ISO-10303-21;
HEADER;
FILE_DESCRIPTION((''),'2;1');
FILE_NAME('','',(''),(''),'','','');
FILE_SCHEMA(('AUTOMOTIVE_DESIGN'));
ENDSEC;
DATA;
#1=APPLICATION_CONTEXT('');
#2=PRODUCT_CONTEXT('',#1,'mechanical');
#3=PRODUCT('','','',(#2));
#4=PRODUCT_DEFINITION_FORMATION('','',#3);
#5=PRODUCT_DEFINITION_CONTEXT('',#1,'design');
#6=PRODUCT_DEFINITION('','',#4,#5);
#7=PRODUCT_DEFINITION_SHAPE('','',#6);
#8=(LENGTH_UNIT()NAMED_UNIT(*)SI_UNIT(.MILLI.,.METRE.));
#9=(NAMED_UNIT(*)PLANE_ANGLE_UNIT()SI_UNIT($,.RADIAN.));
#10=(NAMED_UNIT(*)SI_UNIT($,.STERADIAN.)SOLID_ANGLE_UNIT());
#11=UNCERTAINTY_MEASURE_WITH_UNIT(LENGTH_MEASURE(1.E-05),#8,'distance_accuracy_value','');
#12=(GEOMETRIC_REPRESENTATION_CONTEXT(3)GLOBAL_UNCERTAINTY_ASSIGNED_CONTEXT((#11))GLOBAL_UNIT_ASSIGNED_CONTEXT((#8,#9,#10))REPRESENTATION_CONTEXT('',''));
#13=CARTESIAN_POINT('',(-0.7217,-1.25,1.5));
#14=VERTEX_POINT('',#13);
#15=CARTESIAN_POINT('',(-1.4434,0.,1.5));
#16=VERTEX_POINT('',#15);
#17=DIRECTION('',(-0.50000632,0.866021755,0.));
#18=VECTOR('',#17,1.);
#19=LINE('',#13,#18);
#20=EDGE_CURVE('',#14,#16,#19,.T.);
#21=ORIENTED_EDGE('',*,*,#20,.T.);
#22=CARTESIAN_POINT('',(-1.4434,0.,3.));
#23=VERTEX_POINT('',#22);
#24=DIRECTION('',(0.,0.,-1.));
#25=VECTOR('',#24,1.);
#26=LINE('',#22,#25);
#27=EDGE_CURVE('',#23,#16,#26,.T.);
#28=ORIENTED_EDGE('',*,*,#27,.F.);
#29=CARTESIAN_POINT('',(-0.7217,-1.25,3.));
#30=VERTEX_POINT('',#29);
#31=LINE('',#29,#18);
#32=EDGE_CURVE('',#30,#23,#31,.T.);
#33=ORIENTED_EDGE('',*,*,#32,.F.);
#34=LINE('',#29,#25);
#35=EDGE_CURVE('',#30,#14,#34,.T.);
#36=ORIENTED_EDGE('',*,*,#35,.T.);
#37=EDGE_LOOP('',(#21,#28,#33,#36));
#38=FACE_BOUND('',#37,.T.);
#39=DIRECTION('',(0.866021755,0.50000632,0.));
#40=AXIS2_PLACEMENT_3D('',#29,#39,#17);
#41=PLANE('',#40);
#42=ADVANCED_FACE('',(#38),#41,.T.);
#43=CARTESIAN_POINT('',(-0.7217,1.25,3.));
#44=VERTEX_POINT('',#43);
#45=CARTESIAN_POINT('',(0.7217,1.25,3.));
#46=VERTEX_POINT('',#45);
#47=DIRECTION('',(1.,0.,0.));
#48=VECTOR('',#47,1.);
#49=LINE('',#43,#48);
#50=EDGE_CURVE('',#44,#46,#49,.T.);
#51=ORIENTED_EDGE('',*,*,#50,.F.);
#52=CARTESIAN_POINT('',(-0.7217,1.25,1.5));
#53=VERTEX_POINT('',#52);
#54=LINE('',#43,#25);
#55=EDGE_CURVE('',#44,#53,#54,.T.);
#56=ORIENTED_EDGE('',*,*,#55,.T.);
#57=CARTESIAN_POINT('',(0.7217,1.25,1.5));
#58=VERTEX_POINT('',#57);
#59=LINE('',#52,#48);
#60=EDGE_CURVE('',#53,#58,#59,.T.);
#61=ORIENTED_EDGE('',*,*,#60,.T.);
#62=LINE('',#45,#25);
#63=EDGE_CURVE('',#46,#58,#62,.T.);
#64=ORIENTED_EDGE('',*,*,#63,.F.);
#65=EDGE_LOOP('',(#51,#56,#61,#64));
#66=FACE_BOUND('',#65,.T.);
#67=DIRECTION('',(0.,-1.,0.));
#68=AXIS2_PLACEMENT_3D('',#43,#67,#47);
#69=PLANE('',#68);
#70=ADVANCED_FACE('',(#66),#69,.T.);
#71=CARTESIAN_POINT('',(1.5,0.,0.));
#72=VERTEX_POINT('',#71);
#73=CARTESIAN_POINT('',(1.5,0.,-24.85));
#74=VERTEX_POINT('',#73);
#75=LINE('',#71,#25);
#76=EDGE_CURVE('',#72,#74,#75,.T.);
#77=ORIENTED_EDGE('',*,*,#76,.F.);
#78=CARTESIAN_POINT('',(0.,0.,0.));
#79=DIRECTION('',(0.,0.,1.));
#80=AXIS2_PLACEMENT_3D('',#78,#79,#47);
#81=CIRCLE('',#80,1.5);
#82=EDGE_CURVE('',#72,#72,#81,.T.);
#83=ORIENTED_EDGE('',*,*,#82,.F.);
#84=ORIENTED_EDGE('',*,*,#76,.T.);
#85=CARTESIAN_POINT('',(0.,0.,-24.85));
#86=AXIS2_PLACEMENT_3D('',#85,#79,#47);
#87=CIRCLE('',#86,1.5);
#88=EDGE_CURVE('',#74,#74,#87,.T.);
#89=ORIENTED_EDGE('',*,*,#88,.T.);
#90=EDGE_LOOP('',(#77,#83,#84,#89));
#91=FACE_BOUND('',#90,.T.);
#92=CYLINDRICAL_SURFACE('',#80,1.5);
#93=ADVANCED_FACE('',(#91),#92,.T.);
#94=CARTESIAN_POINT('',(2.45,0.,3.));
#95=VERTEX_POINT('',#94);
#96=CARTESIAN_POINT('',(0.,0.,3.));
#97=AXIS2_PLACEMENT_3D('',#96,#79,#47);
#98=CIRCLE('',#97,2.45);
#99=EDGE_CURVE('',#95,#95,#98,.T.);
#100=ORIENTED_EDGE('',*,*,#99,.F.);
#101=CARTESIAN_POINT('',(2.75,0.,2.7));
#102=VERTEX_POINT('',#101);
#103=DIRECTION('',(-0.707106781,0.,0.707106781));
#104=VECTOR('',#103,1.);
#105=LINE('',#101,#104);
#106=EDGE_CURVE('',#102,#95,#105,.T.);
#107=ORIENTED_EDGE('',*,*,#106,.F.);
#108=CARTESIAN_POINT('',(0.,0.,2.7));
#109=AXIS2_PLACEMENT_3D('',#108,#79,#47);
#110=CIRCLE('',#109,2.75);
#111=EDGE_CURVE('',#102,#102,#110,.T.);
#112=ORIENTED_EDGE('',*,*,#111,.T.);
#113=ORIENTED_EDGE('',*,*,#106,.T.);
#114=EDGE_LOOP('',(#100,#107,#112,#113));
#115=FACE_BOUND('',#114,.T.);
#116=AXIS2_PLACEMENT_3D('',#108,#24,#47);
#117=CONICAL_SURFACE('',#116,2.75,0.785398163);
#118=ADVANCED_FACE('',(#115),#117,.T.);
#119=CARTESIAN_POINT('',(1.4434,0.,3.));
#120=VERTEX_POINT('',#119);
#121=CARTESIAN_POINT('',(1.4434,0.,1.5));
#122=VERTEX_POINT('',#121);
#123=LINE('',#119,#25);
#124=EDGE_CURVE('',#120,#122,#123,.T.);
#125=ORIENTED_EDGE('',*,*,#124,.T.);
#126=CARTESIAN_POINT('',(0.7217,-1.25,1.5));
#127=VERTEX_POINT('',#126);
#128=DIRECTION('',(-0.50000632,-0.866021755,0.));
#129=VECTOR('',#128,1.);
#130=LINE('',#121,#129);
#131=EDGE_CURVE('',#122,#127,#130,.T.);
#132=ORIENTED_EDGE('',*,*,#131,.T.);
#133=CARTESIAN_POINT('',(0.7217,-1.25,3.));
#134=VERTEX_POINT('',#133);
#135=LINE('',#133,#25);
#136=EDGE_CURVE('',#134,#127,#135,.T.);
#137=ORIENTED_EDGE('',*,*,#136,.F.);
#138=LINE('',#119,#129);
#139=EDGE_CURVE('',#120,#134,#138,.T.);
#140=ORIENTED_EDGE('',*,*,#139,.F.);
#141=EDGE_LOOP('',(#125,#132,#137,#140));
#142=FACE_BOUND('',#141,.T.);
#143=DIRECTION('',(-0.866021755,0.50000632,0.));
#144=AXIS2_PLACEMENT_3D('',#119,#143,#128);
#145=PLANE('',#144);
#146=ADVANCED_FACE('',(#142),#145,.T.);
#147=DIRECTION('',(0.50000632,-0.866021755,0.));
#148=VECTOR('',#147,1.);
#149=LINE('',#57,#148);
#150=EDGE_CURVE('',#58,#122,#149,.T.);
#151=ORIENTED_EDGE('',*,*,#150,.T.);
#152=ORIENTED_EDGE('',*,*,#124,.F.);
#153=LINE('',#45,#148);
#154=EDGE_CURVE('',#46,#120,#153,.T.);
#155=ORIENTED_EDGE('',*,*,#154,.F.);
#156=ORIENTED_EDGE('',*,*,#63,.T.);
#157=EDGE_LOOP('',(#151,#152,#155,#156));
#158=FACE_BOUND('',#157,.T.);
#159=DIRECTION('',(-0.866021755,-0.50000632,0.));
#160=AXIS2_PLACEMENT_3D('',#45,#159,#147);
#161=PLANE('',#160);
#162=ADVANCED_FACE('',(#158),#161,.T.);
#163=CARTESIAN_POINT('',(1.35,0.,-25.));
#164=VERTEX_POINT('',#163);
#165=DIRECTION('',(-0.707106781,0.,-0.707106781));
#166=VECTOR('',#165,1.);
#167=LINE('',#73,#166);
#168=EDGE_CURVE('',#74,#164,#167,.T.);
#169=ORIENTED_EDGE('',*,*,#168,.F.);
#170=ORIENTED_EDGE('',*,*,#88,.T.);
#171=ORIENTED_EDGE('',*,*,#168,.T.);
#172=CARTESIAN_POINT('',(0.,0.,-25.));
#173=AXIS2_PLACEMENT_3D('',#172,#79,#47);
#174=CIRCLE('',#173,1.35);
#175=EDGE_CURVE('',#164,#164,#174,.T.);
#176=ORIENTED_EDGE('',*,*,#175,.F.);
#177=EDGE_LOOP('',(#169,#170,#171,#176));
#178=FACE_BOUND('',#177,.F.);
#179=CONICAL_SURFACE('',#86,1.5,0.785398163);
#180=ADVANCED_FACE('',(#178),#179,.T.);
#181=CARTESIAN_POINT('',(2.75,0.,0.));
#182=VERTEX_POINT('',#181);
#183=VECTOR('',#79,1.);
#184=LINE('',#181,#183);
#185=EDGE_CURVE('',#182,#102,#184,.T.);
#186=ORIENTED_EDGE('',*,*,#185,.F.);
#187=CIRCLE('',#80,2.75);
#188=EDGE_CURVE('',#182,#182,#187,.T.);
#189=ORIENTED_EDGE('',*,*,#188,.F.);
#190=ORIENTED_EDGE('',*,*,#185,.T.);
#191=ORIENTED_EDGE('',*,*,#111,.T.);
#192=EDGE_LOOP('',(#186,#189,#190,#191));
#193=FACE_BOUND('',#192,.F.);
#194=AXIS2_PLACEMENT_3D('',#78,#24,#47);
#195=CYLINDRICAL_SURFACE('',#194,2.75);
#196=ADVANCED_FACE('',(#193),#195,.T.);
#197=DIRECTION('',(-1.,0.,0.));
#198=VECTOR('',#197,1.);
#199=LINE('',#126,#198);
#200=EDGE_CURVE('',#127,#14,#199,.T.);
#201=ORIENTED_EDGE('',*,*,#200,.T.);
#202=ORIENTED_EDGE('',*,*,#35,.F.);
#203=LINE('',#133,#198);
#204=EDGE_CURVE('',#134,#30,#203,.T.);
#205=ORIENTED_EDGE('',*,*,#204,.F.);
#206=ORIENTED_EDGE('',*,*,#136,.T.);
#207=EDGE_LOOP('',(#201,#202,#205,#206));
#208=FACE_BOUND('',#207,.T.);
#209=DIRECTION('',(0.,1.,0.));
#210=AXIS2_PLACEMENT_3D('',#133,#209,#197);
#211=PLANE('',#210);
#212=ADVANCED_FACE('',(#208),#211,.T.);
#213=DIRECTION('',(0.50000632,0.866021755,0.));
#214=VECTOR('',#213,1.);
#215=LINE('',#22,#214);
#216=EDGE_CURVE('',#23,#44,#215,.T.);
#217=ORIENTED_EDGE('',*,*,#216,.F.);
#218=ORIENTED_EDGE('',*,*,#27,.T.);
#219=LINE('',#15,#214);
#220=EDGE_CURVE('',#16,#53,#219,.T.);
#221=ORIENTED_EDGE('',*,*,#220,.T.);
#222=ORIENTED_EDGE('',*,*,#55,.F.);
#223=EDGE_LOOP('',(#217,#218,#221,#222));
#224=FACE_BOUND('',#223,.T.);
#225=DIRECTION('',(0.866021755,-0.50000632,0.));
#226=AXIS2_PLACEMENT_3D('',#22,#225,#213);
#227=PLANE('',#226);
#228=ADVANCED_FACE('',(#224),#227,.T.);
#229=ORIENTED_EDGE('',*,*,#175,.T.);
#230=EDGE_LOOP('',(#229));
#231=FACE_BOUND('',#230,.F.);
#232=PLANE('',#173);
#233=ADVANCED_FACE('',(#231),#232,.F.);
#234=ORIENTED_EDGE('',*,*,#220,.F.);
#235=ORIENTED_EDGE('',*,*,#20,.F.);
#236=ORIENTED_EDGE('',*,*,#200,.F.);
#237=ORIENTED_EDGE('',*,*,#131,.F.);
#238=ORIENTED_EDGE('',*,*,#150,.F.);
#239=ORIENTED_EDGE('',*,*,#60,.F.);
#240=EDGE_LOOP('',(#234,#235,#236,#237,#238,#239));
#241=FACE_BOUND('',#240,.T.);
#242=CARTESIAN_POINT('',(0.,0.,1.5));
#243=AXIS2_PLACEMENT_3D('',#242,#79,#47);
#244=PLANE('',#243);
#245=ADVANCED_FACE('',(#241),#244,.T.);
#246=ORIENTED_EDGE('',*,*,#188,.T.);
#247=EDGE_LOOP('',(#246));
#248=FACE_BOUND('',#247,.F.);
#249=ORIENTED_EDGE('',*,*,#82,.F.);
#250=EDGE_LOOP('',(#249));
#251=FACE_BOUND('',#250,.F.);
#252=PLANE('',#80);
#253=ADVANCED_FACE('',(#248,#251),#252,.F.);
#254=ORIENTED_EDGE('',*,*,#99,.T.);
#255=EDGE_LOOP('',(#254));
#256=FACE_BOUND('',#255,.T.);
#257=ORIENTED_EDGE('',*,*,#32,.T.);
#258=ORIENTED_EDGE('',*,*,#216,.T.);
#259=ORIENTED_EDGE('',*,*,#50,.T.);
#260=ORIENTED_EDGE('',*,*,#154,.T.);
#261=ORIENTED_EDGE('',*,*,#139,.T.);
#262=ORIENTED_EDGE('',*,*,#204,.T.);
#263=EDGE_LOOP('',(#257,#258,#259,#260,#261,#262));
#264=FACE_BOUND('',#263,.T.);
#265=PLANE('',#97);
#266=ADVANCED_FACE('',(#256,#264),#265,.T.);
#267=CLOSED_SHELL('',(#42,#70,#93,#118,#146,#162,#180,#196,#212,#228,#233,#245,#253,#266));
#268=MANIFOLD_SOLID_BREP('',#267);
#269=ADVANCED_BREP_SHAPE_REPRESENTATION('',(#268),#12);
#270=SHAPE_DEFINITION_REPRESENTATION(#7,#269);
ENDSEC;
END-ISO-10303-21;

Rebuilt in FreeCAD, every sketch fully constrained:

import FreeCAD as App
import Part
import Sketcher
Q = App.Units.Quantity


def edges_at(feature, points):
    """Names of the edges that pass closest to the given points."""
    edges = feature.Shape.Edges
    near = lambda p: min(range(len(edges)), key=lambda i: edges[i].distToShape(Part.Vertex(*p))[0])
    return sorted({f"Edge{near(p) + 1}" for p in points})

doc = App.newDocument("Part")
body = doc.addObject("PartDesign::Body", "Body")

sketch1 = body.newObject("Sketcher::SketchObject", "Sketch")
sketch1.AttachmentSupport = (doc.getObject("XY_Plane"), [""])
sketch1.MapMode = "FlatFace"
sketch1.addGeometry(Part.Circle(App.Vector(0, 0, 0), App.Vector(0, 0, 1), 1.5), False)
sketch1.addConstraint([
    Sketcher.Constraint("Coincident", 0, 3, -1, 1),
    Sketcher.Constraint("Diameter", 0, 3.0),
])
pad1 = body.newObject("PartDesign::Pad", "Pad")
pad1.Profile = sketch1
pad1.Length = 25
pad1.Reversed = True

sketch2 = body.newObject("Sketcher::SketchObject", "Sketch001")
sketch2.AttachmentSupport = (doc.getObject("XY_Plane"), [""])
sketch2.MapMode = "FlatFace"
sketch2.addGeometry(Part.Circle(App.Vector(0, 0, 0), App.Vector(0, 0, 1), 2.8), False)
sketch2.addConstraint([
    Sketcher.Constraint("Coincident", 0, 3, -1, 1),
    Sketcher.Constraint("Diameter", 0, 5.5),
])
pad2 = body.newObject("PartDesign::Pad", "Pad001")
pad2.Profile = sketch2
pad2.Length = 3

sketch3 = body.newObject("Sketcher::SketchObject", "Sketch002")
sketch3.AttachmentSupport = (doc.getObject("XY_Plane"), [""])
sketch3.MapMode = "FlatFace"
sketch3.AttachmentOffset = App.Placement(App.Vector(0, 0, 3), App.Rotation())
sketch3.addGeometry([
    Part.LineSegment(App.Vector(0.7, -1.2, 0), App.Vector(1.4, 0, 0)),
    Part.LineSegment(App.Vector(1.4, 0, 0), App.Vector(0.7, 1.2, 0)),
    Part.LineSegment(App.Vector(0.7, 1.2, 0), App.Vector(-0.7, 1.2, 0)),
    Part.LineSegment(App.Vector(-0.7, 1.2, 0), App.Vector(-1.4, 0, 0)),
    Part.LineSegment(App.Vector(-1.4, 0, 0), App.Vector(-0.7, -1.2, 0)),
    Part.LineSegment(App.Vector(-0.7, -1.2, 0), App.Vector(0.7, -1.2, 0)),
], False)
sketch3.addConstraint([
    Sketcher.Constraint("Coincident", 0, 2, 1, 1),
    Sketcher.Constraint("Coincident", 1, 2, 2, 1),
    Sketcher.Constraint("Coincident", 2, 2, 3, 1),
    Sketcher.Constraint("Coincident", 3, 2, 4, 1),
    Sketcher.Constraint("Coincident", 4, 2, 5, 1),
    Sketcher.Constraint("Coincident", 5, 2, 0, 1),
    Sketcher.Constraint("Horizontal", 2),
    Sketcher.Constraint("Horizontal", 5),
    Sketcher.Constraint("Symmetric", 0, 2, 3, 2, -1, 1),
    Sketcher.Constraint("Symmetric", 1, 2, 4, 2, -1, 1),
    Sketcher.Constraint("PointOnObject", 0, 2, -1),
    Sketcher.Constraint("Parallel", 0, 3),
    Sketcher.Constraint("Vertical", 2, 2, 4, 2),
    Sketcher.Constraint("DistanceY", 4, 2, 2, 2, 2.5),
    Sketcher.Constraint("Angle", 0, Q("59.9996 deg")),
    Sketcher.Constraint("DistanceX", 2, 2, 2, 1, 1.4434),
])
pocket1 = body.newObject("PartDesign::Pocket", "Pocket")
pocket1.Profile = sketch3
pocket1.Length = 1.5
doc.recompute()

chamfer = body.newObject("PartDesign::Chamfer", "Chamfer")
chamfer.Base = (pocket1, edges_at(pocket1, [(-2.75, 0, 3)]))
chamfer.Size = 0.3
doc.recompute()

chamfer2 = body.newObject("PartDesign::Chamfer", "Chamfer001")
chamfer2.Base = (chamfer, edges_at(chamfer, [(-1.5, 0, -25)]))
chamfer2.Size = 0.15

doc.recompute()
